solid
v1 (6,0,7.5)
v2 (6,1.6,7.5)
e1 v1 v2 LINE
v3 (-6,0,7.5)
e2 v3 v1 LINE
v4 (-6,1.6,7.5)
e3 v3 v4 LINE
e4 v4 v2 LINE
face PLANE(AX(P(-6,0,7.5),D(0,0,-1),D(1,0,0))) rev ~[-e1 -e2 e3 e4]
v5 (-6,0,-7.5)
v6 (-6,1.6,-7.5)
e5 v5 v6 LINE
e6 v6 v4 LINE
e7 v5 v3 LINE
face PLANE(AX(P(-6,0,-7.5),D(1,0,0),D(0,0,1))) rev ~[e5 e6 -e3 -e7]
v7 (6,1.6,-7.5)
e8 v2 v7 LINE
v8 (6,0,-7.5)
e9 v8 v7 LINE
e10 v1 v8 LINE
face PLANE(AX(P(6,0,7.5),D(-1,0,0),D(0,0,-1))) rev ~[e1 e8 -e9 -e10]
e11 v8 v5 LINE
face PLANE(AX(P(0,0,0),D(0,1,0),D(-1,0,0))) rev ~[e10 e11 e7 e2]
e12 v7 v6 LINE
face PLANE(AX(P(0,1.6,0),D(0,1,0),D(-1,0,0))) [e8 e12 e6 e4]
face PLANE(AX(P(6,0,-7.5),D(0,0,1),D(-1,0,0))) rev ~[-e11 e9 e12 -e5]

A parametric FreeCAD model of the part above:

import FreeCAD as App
import Part
import Sketcher

V = App.Vector
Q = App.Units.Quantity

doc = App.newDocument("Part")
params = doc.addObject("Spreadsheet::Sheet", "Params")
for row, (alias, value) in enumerate([
    ("sketch1_width", "12 mm"),
    ("sketch1_height", "15 mm"),
    ("pad1_length", "1.6 mm"),
], start=1):
    params.set(f"A{row}", alias)
    params.set(f"B{row}", "=" + value)
    params.setAlias(f"B{row}", alias)

body = doc.addObject("PartDesign::Body", "Body")

# Sketch on XZ plane
sketch1 = doc.addObject("Sketcher::SketchObject", "Sketch")
body.addObject(sketch1)
sketch1.AttachmentSupport = (doc.XZ_Plane, [""])
sketch1.MapMode = "FlatFace"
sketch1.addGeometry([
    Part.LineSegment(V(-6, -8, 0), V(-6, 8, 0)),
    Part.LineSegment(V(-6, 8, 0), V(6, 8, 0)),
    Part.LineSegment(V(6, 8, 0), V(6, -8, 0)),
    Part.LineSegment(V(6, -8, 0), V(-6, -8, 0)),
], False)
sketch1.addConstraint([
    Sketcher.Constraint("Coincident", 0, 2, 1, 1),
    Sketcher.Constraint("Coincident", 1, 2, 2, 1),
    Sketcher.Constraint("Coincident", 2, 2, 3, 1),
    Sketcher.Constraint("Coincident", 3, 2, 0, 1),
    Sketcher.Constraint("Vertical", 0),
    Sketcher.Constraint("Horizontal", 1),
    Sketcher.Constraint("Vertical", 2),
    Sketcher.Constraint("Horizontal", 3),
    Sketcher.Constraint("Symmetric", 0, 2, 2, 2, -1, 1),
    Sketcher.Constraint("DistanceX", 1, 1, 1, 2, Q("12 mm")),
    Sketcher.Constraint("DistanceY", 0, 1, 0, 2, Q("15 mm")),
])
sketch1.setExpression("Constraints[9]", "Params.sketch1_width")
sketch1.setExpression("Constraints[10]", "Params.sketch1_height")
pad1 = doc.addObject("PartDesign::Pad", "Pad")
body.addObject(pad1)
pad1.Profile = sketch1
pad1.setExpression("Length", "Params.pad1_length")
pad1.Reversed = True

doc.recompute()
